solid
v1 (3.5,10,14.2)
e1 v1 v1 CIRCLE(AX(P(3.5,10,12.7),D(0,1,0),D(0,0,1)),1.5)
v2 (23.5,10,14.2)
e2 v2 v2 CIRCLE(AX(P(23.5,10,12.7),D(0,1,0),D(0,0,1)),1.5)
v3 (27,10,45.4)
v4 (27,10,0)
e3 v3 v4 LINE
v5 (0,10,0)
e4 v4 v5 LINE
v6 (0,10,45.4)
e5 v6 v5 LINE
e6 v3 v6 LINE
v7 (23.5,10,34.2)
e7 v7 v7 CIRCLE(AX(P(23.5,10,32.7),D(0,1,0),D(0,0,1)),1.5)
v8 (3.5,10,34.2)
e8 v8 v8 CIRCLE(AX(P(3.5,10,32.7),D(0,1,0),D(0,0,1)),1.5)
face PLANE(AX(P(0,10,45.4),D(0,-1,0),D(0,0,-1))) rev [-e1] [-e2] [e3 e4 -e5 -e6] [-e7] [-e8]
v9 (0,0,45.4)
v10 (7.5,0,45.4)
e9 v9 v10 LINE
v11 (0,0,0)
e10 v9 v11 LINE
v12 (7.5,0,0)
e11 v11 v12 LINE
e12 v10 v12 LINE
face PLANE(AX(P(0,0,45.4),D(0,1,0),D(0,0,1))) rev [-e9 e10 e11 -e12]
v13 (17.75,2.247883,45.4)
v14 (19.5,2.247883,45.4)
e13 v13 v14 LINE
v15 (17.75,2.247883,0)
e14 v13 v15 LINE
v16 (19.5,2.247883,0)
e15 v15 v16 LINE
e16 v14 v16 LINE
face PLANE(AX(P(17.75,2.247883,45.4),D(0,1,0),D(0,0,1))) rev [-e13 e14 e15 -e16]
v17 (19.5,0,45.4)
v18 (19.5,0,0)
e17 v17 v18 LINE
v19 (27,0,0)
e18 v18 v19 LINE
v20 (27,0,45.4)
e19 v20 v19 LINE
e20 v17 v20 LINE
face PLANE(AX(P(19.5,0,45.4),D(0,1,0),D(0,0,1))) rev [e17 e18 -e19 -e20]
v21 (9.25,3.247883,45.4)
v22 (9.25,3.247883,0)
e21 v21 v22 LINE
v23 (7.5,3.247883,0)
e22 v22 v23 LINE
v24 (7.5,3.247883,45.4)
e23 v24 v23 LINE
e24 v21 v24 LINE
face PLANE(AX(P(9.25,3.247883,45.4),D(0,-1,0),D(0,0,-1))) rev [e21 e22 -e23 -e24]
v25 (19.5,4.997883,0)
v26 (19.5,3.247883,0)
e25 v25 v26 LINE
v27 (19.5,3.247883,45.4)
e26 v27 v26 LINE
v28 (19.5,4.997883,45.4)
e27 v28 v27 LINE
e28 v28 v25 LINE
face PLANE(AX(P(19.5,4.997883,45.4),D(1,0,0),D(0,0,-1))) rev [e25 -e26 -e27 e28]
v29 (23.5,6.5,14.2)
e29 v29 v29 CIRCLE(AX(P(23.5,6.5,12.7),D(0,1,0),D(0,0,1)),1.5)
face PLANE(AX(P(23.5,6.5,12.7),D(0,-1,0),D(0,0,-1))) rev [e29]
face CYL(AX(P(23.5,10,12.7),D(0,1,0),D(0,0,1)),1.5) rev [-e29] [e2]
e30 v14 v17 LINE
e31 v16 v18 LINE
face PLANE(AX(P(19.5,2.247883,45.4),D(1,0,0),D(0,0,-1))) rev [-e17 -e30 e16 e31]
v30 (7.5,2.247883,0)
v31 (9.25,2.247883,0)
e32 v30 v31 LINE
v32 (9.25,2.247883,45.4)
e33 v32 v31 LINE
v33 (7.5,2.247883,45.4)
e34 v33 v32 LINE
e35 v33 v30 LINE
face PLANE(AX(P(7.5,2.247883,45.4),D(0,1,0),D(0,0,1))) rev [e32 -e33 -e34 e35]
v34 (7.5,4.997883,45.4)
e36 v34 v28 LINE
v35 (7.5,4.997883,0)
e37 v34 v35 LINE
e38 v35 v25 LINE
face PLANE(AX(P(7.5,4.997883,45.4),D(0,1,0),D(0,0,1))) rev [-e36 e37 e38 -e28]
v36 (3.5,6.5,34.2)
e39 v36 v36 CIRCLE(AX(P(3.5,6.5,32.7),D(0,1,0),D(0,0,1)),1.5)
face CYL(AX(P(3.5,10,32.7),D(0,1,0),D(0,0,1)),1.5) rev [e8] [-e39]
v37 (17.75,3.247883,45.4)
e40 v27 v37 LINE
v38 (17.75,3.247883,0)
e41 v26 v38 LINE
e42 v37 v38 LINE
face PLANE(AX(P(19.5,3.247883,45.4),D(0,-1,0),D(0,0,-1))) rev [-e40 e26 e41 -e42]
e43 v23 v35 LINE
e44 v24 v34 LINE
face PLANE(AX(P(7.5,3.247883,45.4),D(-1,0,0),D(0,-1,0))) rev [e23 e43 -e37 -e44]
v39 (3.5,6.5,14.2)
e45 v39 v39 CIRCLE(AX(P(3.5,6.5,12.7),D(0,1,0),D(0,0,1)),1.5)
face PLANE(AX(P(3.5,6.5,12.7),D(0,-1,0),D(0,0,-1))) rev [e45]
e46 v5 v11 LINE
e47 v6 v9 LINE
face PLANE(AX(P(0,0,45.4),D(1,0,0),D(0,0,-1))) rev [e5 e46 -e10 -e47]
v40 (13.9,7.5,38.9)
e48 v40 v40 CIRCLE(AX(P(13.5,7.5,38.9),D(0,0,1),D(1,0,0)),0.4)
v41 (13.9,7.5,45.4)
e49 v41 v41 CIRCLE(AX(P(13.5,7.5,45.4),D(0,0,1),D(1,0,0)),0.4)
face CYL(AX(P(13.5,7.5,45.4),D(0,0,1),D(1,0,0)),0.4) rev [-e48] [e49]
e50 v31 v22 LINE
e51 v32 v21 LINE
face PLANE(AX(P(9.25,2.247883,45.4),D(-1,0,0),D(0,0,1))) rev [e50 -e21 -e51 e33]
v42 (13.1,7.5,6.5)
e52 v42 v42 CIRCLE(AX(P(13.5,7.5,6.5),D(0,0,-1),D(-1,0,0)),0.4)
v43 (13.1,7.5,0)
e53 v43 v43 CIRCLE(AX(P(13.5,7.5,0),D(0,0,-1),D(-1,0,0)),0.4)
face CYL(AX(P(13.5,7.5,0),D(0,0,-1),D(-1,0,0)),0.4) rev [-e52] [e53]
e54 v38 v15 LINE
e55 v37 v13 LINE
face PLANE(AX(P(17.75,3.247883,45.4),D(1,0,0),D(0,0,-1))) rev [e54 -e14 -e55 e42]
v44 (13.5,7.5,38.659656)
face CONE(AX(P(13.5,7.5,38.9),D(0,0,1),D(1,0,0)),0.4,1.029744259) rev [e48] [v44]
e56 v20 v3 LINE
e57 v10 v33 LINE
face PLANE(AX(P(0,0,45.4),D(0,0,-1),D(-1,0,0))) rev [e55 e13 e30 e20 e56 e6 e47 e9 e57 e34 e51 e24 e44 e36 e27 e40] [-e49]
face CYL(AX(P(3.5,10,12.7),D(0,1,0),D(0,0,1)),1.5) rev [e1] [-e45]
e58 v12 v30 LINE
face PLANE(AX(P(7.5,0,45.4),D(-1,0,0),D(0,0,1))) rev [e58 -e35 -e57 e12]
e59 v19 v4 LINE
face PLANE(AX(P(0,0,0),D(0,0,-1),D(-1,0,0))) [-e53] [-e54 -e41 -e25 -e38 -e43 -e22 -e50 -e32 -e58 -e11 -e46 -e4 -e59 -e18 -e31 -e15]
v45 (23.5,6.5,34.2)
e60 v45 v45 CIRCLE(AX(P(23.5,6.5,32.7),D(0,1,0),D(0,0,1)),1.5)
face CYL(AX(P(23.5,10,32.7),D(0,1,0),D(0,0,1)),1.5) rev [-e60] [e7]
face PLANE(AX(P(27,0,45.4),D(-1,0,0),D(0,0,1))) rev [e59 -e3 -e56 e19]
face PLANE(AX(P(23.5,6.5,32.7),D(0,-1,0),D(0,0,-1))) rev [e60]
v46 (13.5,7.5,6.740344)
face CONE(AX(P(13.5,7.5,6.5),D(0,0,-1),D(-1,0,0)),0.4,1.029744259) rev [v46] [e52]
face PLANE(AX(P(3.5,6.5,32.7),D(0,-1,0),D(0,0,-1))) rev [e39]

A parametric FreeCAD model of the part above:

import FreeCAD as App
import Part
import Sketcher


def add_polygon(sketch, points):
    """Adds a closed chain of lines whose ends are joined by coincident constraints."""
    first, n = sketch.GeometryCount, len(points)
    for a, b in zip(points, points[1:] + points[:1]):
        sketch.addGeometry(Part.LineSegment(App.Vector(*a, 0), App.Vector(*b, 0)), False)
    for i in range(n):
        sketch.addConstraint(Sketcher.Constraint("Coincident", first + i, 2, first + (i + 1) % n, 1))

doc = App.newDocument("Part")
body = doc.addObject("PartDesign::Body", "Body")

sketch1 = doc.addObject("Sketcher::SketchObject", "Sketch")
body.addObject(sketch1)
sketch1.AttachmentSupport = (doc.XY_Plane, [""])
sketch1.MapMode = "FlatFace"
add_polygon(sketch1, [(7.5, 0), (7.5, 2.247883), (9.25, 2.247883), (9.25, 3.247883), (7.5, 3.247883), (7.5, 4.997883), (19.5, 4.997883), (19.5, 3.247883), (17.75, 3.247883), (17.75, 2.247883), (19.5, 2.247883), (19.5, 0), (27, 0), (27, 10), (0, 10), (0, 0)])
sketch1.addConstraint([
    Sketcher.Constraint("Vertical", 0),
    Sketcher.Constraint("Horizontal", 1),
    Sketcher.Constraint("Vertical", 2),
    Sketcher.Constraint("Horizontal", 3),
    Sketcher.Constraint("Vertical", 4),
    Sketcher.Constraint("Horizontal", 5),
    Sketcher.Constraint("Vertical", 6),
    Sketcher.Constraint("Horizontal", 7),
    Sketcher.Constraint("Vertical", 8),
    Sketcher.Constraint("Horizontal", 9),
    Sketcher.Constraint("Vertical", 10),
    Sketcher.Constraint("Horizontal", 11),
    Sketcher.Constraint("Vertical", 12),
    Sketcher.Constraint("Horizontal", 13),
    Sketcher.Constraint("Vertical", 14),
    Sketcher.Constraint("Horizontal", 15),
    Sketcher.Constraint("Coincident", 14, 2, -1, 1),
    Sketcher.Constraint("PointOnObject", 10, 2, -1),
    Sketcher.Constraint("Horizontal", 3, 2, 6, 2),
    Sketcher.Constraint("Horizontal", 1, 2, 8, 2),
    Sketcher.Constraint("Vertical", 0, 2, 3, 2),
    Sketcher.Constraint("Vertical", 6, 2, 9, 2),
    Sketcher.Constraint("Equal", 3, 7),
    Sketcher.Constraint("Equal", 11, 15),
    Sketcher.Constraint("Equal", 9, 4),
    Sketcher.Constraint("DistanceX", 5, 1, 5, 2, 12.0),
    Sketcher.Constraint("DistanceX", 13, 2, 13, 1, 27.0),
    Sketcher.Constraint("DistanceY", 2, 1, 2, 2, 1.0),
    Sketcher.Constraint("DistanceY", 12, 1, 12, 2, 10.0),
    Sketcher.Constraint("DistanceX", 1, 1, 1, 2, 1.75),
    Sketcher.Constraint("DistanceY", 0, 1, 0, 2, 2.247883),
])
pad1 = doc.addObject("PartDesign::Pad", "Pad")
body.addObject(pad1)
pad1.Profile = sketch1
pad1.Length = 45.4

sketch2 = doc.addObject("Sketcher::SketchObject", "Sketch001")
body.addObject(sketch2)
sketch2.AttachmentSupport = (doc.XY_Plane, [""])
sketch2.MapMode = "FlatFace"
sketch2.AttachmentOffset = App.Placement(App.Vector(0, 0, 45.4), App.Rotation())
sketch2.addGeometry(Part.Circle(App.Vector(13.5, 7.5, 0), App.Vector(0, 0, 1), 0.4), False)
sketch2.addConstraint([
    Sketcher.Constraint("Diameter", 0, 0.8),
    Sketcher.Constraint("DistanceX", -1, 1, 0, 3, 13.5),
    Sketcher.Constraint("DistanceY", -1, 1, 0, 3, 7.5),
])
doc.recompute()
hole = doc.addObject("PartDesign::Hole", "Hole")
body.addObject(hole)
hole.Profile = sketch2
hole.ThreadType = "None"
hole.Diameter = 0.8
hole.DepthType = "Dimension"
hole.Depth = 6.5
hole.DrillPoint = "Angled"
hole.DrillPointAngle = 118

sketch3 = doc.addObject("Sketcher::SketchObject", "Sketch002")
body.addObject(sketch3)
sketch3.AttachmentSupport = (doc.XY_Plane, [""])
sketch3.MapMode = "FlatFace"
sketch3.addGeometry(Part.Circle(App.Vector(13.5, 7.5, 0), App.Vector(0, 0, 1), 0.4), False)
sketch3.addConstraint([
    Sketcher.Constraint("Diameter", 0, 0.8),
    Sketcher.Constraint("DistanceX", -1, 1, 0, 3, 13.5),
    Sketcher.Constraint("DistanceY", -1, 1, 0, 3, 7.5),
])
doc.recompute()
hole2 = doc.addObject("PartDesign::Hole", "Hole001")
body.addObject(hole2)
hole2.Profile = sketch3
hole2.ThreadType = "None"
hole2.Diameter = 0.8
hole2.DepthType = "Dimension"
hole2.Depth = 6.5
hole2.DrillPoint = "Angled"
hole2.DrillPointAngle = 118
hole2.Reversed = True

sketch4 = doc.addObject("Sketcher::SketchObject", "Sketch003")
body.addObject(sketch4)
sketch4.AttachmentSupport = (doc.XZ_Plane, [""])
sketch4.MapMode = "FlatFace"
sketch4.AttachmentOffset = App.Placement(App.Vector(0, 0, -10), App.Rotation())
sketch4.addGeometry([
    Part.Circle(App.Vector(3.5, 32.7, 0), App.Vector(0, 0, 1), 1.5),
    Part.Circle(App.Vector(23.5, 32.7, 0), App.Vector(0, 0, 1), 1.5),
    Part.Circle(App.Vector(23.5, 12.7, 0), App.Vector(0, 0, 1), 1.5),
    Part.Circle(App.Vector(3.5, 12.7, 0), App.Vector(0, 0, 1), 1.5),
], False)
sketch4.addConstraint([
    Sketcher.Constraint("Equal", 0, 1),
    Sketcher.Constraint("Equal", 1, 2),
    Sketcher.Constraint("Equal", 2, 3),
    Sketcher.Constraint("Horizontal", 0, 3, 1, 3),
    Sketcher.Constraint("Horizontal", 2, 3, 3, 3),
    Sketcher.Constraint("Vertical", 1, 3, 2, 3),
    Sketcher.Constraint("Vertical", 0, 3, 3, 3),
    Sketcher.Constraint("Diameter", 0, 3.0),
    Sketcher.Constraint("DistanceX", 0, 3, 1, 3, 20.0),
    Sketcher.Constraint("DistanceY", 2, 3, 1, 3, 20.0),
    Sketcher.Constraint("DistanceX", -1, 1, 0, 3, 3.5),
    Sketcher.Constraint("DistanceY", -1, 1, 0, 3, 32.7),
])
doc.recompute()
hole3 = doc.addObject("PartDesign::Hole", "Hole002")
body.addObject(hole3)
hole3.Profile = sketch4
hole3.ThreadType = "None"
hole3.Diameter = 3
hole3.DepthType = "Dimension"
hole3.Depth = 3.5
hole3.DrillPoint = "Flat"
hole3.Reversed = True

doc.recompute()
